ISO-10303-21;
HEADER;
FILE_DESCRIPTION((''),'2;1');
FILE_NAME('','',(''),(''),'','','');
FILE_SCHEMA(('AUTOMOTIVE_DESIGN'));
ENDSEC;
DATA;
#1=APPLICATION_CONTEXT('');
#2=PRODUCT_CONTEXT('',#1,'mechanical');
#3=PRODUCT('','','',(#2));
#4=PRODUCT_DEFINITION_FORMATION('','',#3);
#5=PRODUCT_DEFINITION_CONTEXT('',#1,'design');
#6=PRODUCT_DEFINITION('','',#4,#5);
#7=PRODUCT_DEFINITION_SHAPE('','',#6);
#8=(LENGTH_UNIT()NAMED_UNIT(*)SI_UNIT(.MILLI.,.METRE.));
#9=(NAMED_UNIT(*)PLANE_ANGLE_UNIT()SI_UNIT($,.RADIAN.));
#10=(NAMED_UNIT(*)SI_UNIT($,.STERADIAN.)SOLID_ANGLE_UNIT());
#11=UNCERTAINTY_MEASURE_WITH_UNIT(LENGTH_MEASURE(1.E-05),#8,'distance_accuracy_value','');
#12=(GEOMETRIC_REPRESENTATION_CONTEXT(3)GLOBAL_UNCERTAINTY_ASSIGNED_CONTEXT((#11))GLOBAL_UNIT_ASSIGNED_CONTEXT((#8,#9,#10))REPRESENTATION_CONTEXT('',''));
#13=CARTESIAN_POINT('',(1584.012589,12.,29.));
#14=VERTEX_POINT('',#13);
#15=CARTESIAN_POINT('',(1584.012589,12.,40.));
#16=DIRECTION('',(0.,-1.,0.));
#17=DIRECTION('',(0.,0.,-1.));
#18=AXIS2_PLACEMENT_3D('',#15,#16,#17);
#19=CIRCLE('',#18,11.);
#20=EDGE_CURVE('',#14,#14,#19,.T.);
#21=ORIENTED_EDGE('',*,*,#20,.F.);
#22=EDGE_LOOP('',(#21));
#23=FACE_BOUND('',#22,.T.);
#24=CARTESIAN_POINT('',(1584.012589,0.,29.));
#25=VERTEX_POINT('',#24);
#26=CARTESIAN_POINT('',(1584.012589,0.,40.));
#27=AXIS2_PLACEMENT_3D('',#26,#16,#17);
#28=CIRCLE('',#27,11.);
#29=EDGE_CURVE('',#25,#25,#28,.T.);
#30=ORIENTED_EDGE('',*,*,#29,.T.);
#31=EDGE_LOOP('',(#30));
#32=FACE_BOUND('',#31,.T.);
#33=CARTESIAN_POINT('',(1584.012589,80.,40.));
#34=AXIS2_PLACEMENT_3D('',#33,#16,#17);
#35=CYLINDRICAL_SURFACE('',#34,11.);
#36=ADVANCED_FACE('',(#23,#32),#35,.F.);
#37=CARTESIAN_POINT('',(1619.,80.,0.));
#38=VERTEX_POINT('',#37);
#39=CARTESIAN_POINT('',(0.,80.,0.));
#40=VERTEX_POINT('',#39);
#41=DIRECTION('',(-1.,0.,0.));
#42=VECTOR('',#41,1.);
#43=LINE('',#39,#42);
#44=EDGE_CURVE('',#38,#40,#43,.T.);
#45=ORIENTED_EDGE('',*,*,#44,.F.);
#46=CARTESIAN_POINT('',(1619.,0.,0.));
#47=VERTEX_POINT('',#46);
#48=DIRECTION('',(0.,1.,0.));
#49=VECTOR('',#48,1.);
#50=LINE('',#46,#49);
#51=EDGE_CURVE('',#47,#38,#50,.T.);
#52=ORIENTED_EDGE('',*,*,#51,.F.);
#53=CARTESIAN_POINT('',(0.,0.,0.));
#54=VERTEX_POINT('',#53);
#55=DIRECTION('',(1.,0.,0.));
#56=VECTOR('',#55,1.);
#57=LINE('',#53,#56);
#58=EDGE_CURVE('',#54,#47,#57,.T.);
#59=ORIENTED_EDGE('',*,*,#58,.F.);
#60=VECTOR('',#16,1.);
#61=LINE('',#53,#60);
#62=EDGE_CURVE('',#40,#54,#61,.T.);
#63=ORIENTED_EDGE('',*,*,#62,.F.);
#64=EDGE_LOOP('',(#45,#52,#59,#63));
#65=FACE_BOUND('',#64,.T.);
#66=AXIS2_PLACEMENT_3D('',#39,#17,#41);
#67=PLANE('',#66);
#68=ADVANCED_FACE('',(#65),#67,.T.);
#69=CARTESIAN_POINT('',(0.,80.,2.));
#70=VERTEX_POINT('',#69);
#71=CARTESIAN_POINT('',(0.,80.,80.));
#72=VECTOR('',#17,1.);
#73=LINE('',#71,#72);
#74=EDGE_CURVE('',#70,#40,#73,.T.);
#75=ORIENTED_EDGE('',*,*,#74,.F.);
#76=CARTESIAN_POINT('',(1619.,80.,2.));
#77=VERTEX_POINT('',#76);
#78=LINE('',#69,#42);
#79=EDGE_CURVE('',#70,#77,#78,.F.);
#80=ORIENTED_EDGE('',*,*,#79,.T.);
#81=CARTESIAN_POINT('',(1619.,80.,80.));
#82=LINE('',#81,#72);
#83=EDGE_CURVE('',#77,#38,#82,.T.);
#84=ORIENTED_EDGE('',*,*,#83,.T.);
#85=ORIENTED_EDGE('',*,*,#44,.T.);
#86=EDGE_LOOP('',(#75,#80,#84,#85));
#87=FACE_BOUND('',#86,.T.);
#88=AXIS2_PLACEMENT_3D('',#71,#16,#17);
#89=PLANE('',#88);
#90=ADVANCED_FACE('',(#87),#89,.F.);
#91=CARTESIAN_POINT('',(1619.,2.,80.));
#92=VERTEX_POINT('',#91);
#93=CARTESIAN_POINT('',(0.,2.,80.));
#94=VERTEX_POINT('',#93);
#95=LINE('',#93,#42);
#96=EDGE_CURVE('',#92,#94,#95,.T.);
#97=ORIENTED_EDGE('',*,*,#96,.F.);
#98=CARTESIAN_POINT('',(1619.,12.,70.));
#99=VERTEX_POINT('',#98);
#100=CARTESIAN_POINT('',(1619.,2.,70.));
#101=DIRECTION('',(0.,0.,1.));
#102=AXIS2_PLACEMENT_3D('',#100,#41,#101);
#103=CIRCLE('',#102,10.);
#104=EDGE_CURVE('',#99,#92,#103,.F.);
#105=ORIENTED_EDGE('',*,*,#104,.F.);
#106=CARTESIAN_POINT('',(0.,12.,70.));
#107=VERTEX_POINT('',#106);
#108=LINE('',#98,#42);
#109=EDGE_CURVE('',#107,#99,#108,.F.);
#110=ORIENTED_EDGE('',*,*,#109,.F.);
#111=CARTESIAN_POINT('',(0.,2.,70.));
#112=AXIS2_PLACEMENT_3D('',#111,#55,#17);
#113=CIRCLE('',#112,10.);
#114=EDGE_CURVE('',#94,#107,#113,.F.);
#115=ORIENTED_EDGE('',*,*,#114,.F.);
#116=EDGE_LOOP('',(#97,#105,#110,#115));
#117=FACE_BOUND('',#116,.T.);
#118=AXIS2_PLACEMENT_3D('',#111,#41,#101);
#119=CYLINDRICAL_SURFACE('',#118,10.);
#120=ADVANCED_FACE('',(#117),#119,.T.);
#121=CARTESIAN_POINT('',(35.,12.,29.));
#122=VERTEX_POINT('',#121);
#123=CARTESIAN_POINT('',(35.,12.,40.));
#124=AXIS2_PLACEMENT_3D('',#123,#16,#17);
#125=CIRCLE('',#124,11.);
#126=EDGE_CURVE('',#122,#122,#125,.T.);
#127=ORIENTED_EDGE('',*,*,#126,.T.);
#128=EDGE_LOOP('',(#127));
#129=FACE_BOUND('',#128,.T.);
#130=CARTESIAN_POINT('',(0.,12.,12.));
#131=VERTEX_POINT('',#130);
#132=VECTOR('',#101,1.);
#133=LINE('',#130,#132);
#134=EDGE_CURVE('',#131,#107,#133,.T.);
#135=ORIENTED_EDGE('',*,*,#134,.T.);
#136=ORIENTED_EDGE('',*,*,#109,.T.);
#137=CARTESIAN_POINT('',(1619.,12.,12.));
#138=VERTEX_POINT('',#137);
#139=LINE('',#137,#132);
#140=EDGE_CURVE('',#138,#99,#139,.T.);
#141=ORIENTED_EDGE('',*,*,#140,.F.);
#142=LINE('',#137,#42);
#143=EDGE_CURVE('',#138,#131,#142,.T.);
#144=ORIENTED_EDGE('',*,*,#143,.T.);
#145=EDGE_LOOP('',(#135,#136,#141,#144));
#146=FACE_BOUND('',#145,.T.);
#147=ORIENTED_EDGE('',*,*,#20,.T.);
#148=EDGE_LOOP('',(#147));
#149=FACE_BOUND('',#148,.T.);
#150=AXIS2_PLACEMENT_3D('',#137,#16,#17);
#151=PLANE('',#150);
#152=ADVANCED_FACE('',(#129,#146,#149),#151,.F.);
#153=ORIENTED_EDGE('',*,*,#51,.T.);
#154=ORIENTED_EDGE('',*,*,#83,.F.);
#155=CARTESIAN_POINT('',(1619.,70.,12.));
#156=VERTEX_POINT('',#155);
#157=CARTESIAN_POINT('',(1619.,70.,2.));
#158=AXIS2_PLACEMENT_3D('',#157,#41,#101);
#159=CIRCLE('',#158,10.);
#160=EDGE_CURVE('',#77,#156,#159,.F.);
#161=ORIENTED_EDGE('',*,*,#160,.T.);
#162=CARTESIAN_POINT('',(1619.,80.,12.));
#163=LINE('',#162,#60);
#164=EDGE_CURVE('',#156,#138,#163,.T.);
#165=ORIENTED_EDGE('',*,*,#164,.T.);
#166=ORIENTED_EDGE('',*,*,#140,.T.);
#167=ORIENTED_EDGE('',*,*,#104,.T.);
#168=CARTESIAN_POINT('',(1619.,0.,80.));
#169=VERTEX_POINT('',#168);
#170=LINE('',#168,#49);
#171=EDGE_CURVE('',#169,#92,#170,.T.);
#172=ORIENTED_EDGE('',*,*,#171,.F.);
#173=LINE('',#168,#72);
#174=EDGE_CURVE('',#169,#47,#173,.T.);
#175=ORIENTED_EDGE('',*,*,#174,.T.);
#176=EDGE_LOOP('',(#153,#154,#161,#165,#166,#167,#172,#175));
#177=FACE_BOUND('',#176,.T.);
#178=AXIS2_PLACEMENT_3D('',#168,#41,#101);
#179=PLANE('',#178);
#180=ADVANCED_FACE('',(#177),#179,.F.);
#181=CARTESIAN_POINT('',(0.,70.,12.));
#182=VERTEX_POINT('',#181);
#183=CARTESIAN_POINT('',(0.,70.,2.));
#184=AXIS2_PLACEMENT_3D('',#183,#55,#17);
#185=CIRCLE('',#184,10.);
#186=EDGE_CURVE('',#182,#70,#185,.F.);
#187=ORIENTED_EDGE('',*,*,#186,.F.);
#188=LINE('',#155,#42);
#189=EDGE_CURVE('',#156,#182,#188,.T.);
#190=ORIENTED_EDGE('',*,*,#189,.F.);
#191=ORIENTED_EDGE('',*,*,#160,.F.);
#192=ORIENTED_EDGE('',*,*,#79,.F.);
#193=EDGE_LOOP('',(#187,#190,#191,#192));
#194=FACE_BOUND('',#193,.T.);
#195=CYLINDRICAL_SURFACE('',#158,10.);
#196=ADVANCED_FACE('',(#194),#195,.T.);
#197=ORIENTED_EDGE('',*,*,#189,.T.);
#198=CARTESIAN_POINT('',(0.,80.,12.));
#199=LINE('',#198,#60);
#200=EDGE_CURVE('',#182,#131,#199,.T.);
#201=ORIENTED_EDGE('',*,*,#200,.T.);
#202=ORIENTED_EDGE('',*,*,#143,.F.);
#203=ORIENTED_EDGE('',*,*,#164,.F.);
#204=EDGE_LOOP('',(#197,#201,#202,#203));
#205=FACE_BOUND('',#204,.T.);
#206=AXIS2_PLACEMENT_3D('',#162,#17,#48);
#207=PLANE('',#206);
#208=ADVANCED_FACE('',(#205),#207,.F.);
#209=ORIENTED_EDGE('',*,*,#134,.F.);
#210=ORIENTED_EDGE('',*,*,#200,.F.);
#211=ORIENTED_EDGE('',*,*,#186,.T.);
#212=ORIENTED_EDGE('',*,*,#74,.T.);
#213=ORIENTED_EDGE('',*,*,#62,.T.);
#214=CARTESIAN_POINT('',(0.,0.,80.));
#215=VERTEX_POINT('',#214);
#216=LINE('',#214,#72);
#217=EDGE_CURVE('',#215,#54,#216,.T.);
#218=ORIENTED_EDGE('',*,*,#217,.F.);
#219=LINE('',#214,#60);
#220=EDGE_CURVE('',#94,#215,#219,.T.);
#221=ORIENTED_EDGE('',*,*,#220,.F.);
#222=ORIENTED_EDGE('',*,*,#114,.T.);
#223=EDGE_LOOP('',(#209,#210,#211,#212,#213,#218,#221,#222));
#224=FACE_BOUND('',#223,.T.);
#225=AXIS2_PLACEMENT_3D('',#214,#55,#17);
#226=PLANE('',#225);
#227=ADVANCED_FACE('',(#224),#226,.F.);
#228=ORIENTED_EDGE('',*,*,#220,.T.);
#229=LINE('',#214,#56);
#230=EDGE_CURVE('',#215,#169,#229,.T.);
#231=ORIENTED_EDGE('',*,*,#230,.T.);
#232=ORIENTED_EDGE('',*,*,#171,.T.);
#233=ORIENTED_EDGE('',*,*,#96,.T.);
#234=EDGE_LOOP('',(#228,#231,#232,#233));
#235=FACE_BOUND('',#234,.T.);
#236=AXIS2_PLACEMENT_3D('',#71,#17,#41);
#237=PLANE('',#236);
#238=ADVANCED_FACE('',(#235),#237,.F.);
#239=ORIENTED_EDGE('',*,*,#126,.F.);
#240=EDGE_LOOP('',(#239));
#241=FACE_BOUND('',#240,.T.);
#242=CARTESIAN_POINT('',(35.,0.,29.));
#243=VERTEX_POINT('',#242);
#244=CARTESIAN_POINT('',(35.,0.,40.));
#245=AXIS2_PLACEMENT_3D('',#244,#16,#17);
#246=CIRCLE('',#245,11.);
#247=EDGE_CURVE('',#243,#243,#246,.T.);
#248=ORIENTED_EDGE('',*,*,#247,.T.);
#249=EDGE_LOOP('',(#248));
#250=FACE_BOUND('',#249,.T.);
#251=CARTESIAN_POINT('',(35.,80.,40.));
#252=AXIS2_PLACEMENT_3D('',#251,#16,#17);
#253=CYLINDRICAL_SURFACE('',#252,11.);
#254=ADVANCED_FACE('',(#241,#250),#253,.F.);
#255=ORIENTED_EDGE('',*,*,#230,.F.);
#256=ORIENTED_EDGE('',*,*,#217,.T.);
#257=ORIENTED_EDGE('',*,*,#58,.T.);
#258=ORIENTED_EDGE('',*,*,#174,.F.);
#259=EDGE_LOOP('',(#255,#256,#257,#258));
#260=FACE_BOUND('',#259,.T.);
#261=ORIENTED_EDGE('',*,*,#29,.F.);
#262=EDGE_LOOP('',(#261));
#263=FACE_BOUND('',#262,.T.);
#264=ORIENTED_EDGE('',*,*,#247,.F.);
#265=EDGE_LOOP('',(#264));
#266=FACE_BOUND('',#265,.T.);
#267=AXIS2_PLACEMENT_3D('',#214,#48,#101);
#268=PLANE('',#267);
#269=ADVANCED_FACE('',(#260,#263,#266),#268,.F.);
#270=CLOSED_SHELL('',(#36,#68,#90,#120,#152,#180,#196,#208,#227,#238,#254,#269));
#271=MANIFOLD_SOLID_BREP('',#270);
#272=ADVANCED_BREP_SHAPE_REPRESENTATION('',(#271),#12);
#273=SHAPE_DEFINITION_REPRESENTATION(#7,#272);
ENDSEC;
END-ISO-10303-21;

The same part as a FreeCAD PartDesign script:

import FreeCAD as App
import Part
import Sketcher
from FreeCAD import Vector


def edges_at(feature, points):
    """Names of the edges that pass closest to the given points."""
    edges = feature.Shape.Edges
    near = lambda p: min(range(len(edges)), key=lambda i: edges[i].distToShape(Part.Vertex(*p))[0])
    return sorted({f"Edge{near(p) + 1}" for p in points})

doc = App.newDocument("Part")
body = doc.addObject("PartDesign::Body", "Body")

# Sketch on XY plane
sketch1 = body.newObject("Sketcher::SketchObject", "Sketch")
sketch1.AttachmentSupport = (doc.getObject("XY_Plane"), [""])
sketch1.MapMode = "FlatFace"
sketch1.addGeometry(Part.LineSegment(Vector(0, 80, 0), Vector(0, 0, 0)), False)
sketch1.addGeometry(Part.LineSegment(Vector(0, 0, 0), Vector(1619, 0, 0)), False)
sketch1.addGeometry(Part.LineSegment(Vector(1619, 0, 0), Vector(1619, 80, 0)), False)
sketch1.addGeometry(Part.LineSegment(Vector(1619, 80, 0), Vector(0, 80, 0)), False)
sketch1.addConstraint(Sketcher.Constraint("Coincident", 0, 2, 1, 1))
sketch1.addConstraint(Sketcher.Constraint("Coincident", 1, 2, 2, 1))
sketch1.addConstraint(Sketcher.Constraint("Coincident", 2, 2, 3, 1))
sketch1.addConstraint(Sketcher.Constraint("Coincident", 3, 2, 0, 1))
sketch1.addConstraint(Sketcher.Constraint("Vertical", 0))
sketch1.addConstraint(Sketcher.Constraint("Horizontal", 1))
sketch1.addConstraint(Sketcher.Constraint("Vertical", 2))
sketch1.addConstraint(Sketcher.Constraint("Horizontal", 3))
sketch1.addConstraint(Sketcher.Constraint("Coincident", 0, 2, -1, 1))
sketch1.addConstraint(Sketcher.Constraint("DistanceX", 1, 1, 1, 2, 1619.0))
sketch1.addConstraint(Sketcher.Constraint("DistanceY", 0, 2, 0, 1, 80.0))
pad1 = body.newObject("PartDesign::Pad", "Pad")
pad1.Profile = sketch1
pad1.Length = 80

# Sketch on YZ plane
sketch2 = body.newObject("Sketcher::SketchObject", "Sketch001")
sketch2.AttachmentSupport = (doc.getObject("YZ_Plane"), [""])
sketch2.MapMode = "FlatFace"
sketch2.addGeometry(Part.LineSegment(Vector(80, 12, 0), Vector(12, 12, 0)), False)
sketch2.addGeometry(Part.LineSegment(Vector(12, 12, 0), Vector(12, 80, 0)), False)
sketch2.addGeometry(Part.LineSegment(Vector(12, 80, 0), Vector(80, 80, 0)), False)
sketch2.addGeometry(Part.LineSegment(Vector(80, 80, 0), Vector(80, 12, 0)), False)
sketch2.addConstraint(Sketcher.Constraint("Coincident", 0, 2, 1, 1))
sketch2.addConstraint(Sketcher.Constraint("Coincident", 1, 2, 2, 1))
sketch2.addConstraint(Sketcher.Constraint("Coincident", 2, 2, 3, 1))
sketch2.addConstraint(Sketcher.Constraint("Coincident", 3, 2, 0, 1))
sketch2.addConstraint(Sketcher.Constraint("Horizontal", 0))
sketch2.addConstraint(Sketcher.Constraint("Vertical", 1))
sketch2.addConstraint(Sketcher.Constraint("Horizontal", 2))
sketch2.addConstraint(Sketcher.Constraint("Vertical", 3))
sketch2.addConstraint(Sketcher.Constraint("Equal", 2, 1))
sketch2.addConstraint(Sketcher.Constraint("DistanceX", 0, 2, 0, 1, 68.0))
sketch2.addConstraint(Sketcher.Constraint("DistanceX", -1, 1, 0, 2, 12.0))
sketch2.addConstraint(Sketcher.Constraint("DistanceY", -1, 1, 0, 2, 12.0))
pocket1 = body.newObject("PartDesign::Pocket", "Pocket")
pocket1.Profile = sketch2
pocket1.Type = "ThroughAll"
pocket1.Reversed = True
doc.recompute()

fillet = body.newObject("PartDesign::Fillet", "Fillet")
fillet.Base = (pocket1, edges_at(pocket1, [(809.5, 80, 12), (809.5, 12, 80)]))
fillet.Radius = 10

# Sketch on XZ plane
sketch3 = body.newObject("Sketcher::SketchObject", "Sketch002")
sketch3.AttachmentSupport = (doc.getObject("XZ_Plane"), [""])
sketch3.MapMode = "FlatFace"
sketch3.addGeometry(Part.Circle(Vector(35, 40, 0), Vector(0, 0, 1), 11), False)
sketch3.addConstraint(Sketcher.Constraint("Diameter", 0, 22.0))
sketch3.addConstraint(Sketcher.Constraint("DistanceX", -1, 1, 0, 3, 35.0))
sketch3.addConstraint(Sketcher.Constraint("DistanceY", -1, 1, 0, 3, 40.0))
pocket2 = body.newObject("PartDesign::Pocket", "Pocket001")
pocket2.Profile = sketch3
pocket2.Type = "ThroughAll"
doc.recompute()

linearpattern = body.newObject("PartDesign::LinearPattern", "LinearPattern")
linearpattern.Originals = [pocket2]
linearpattern.Direction = (doc.getObject("X_Axis"), [""])
linearpattern.Mode = "offset"
linearpattern.Offset = 1549.012589
linearpattern.Occurrences = 2
body.Tip = linearpattern

doc.recompute()
